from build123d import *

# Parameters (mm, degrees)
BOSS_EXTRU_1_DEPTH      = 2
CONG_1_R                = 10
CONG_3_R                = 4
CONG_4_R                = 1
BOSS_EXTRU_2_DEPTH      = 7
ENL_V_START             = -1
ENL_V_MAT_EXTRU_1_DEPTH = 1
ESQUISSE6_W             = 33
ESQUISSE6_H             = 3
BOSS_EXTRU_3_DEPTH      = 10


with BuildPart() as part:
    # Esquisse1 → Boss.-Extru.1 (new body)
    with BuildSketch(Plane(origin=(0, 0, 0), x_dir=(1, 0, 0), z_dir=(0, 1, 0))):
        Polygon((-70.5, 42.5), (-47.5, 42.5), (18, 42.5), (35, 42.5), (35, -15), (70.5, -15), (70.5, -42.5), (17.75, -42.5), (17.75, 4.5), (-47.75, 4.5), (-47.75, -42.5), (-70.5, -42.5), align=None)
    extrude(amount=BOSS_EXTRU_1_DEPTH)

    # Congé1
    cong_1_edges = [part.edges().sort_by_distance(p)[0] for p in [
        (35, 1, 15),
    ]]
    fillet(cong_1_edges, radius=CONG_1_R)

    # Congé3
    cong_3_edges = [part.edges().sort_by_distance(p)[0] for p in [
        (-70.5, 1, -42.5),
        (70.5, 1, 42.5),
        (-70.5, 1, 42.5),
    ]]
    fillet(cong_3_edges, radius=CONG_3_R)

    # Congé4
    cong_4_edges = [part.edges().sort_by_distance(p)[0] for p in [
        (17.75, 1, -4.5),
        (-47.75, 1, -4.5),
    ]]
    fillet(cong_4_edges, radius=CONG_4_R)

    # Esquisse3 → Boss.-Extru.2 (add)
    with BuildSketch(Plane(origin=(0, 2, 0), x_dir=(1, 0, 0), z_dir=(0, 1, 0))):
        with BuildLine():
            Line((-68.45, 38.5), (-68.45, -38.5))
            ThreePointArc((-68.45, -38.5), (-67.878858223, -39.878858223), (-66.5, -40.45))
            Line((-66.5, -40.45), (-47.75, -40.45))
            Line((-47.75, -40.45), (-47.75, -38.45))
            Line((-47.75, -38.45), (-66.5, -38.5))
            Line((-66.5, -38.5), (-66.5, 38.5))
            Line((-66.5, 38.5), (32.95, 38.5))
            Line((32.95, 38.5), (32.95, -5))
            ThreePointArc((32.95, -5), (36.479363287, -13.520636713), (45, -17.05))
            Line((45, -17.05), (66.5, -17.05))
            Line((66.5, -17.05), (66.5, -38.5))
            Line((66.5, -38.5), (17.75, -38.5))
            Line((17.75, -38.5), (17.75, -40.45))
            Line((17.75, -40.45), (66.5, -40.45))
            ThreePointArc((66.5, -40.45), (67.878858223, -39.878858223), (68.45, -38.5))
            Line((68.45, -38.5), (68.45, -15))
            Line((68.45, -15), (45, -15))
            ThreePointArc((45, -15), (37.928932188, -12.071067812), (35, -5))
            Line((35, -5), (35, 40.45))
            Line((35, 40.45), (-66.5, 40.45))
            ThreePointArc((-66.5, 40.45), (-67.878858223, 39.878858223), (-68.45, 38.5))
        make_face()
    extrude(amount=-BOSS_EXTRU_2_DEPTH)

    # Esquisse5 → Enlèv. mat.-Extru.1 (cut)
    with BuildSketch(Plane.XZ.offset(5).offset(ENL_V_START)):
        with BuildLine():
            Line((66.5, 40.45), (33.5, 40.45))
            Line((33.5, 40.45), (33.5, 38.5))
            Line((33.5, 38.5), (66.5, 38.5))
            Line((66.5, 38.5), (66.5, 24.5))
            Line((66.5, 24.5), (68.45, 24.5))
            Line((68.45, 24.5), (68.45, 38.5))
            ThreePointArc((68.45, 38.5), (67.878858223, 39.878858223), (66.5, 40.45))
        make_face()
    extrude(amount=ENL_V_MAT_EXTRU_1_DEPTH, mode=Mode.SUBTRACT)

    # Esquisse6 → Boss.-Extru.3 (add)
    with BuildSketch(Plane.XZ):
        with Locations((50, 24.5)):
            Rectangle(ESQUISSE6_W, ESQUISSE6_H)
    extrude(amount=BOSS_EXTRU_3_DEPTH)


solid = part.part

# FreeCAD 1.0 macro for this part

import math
import FreeCAD as App
import Part
import Sketcher

V = App.Vector


def edges_at(feature, points):
    """Names of the edges that pass closest to the given points."""
    edges = feature.Shape.Edges
    near = lambda p: min(range(len(edges)), key=lambda i: edges[i].distToShape(Part.Vertex(*p))[0])
    return sorted({f"Edge{near(p) + 1}" for p in points})

doc = App.newDocument("Part")
body = doc.addObject("PartDesign::Body", "Body")

# Sketch on XZ plane
sketch1 = doc.addObject("Sketcher::SketchObject", "Sketch")
body.addObject(sketch1)
sketch1.AttachmentSupport = (doc.XZ_Plane, [""])
sketch1.MapMode = "FlatFace"
sketch1.addGeometry([
    Part.LineSegment(V(35, -42.5, 0), V(-70.5, -42.5, 0)),  # 0
    Part.LineSegment(V(-70.5, -42.5, 0), V(-70.5, 42.5, 0)),  # 1
    Part.LineSegment(V(-70.5, 42.5, 0), V(-47.75, 42.5, 0)),  # 2
    Part.LineSegment(V(-47.75, 42.5, 0), V(-47.75, -4.5, 0)),  # 3
    Part.LineSegment(V(-47.75, -4.5, 0), V(17.75, -4.5, 0)),  # 4
    Part.LineSegment(V(17.75, -4.5, 0), V(17.75, 42.5, 0)),  # 5
    Part.LineSegment(V(17.75, 42.5, 0), V(70.5, 42.5, 0)),  # 6
    Part.LineSegment(V(70.5, 42.5, 0), V(70.5, 15, 0)),  # 7
    Part.LineSegment(V(70.5, 15, 0), V(35, 15, 0)),  # 8
    Part.LineSegment(V(35, 15, 0), V(35, -42.5, 0)),  # 9
], False)
sketch1.addConstraint([
    Sketcher.Constraint("Coincident", 0, 2, 1, 1),
    Sketcher.Constraint("Coincident", 1, 2, 2, 1),
    Sketcher.Constraint("Coincident", 2, 2, 3, 1),
    Sketcher.Constraint("Coincident", 3, 2, 4, 1),
    Sketcher.Constraint("Coincident", 4, 2, 5, 1),
    Sketcher.Constraint("Coincident", 5, 2, 6, 1),
    Sketcher.Constraint("Coincident", 6, 2, 7, 1),
    Sketcher.Constraint("Coincident", 7, 2, 8, 1),
    Sketcher.Constraint("Coincident", 8, 2, 9, 1),
    Sketcher.Constraint("Coincident", 9, 2, 0, 1),
    Sketcher.Constraint("Horizontal", 0),
    Sketcher.Constraint("Vertical", 1),
    Sketcher.Constraint("Horizontal", 2),
    Sketcher.Constraint("Vertical", 3),
    Sketcher.Constraint("Horizontal", 4),
    Sketcher.Constraint("Vertical", 5),
    Sketcher.Constraint("Horizontal", 6),
    Sketcher.Constraint("Vertical", 7),
    Sketcher.Constraint("Horizontal", 8),
    Sketcher.Constraint("Vertical", 9),
    Sketcher.Constraint("Symmetric", 0, 2, 6, 2, -1, 1),
    Sketcher.Constraint("Horizontal", 2, 2, 5, 2),
    Sketcher.Constraint("DistanceY", 1, 1, 1, 2, 85.0),
    Sketcher.Constraint("DistanceY", 3, 2, 3, 1, 47.0),
    Sketcher.Constraint("DistanceX", 0, 2, 0, 1, 105.5),
    Sketcher.Constraint("DistanceX", 4, 1, 4, 2, 65.5),
    Sketcher.Constraint("DistanceX", 8, 2, 8, 1, 35.5),
    Sketcher.Constraint("DistanceY", 7, 2, 7, 1, 27.5),
    Sketcher.Constraint("DistanceX", 2, 1, 2, 2, 22.75),
])
pad1 = doc.addObject("PartDesign::Pad", "Pad")
body.addObject(pad1)
pad1.Profile = sketch1
pad1.Length = 2
pad1.Reversed = True
doc.recompute()

fillet = doc.addObject("PartDesign::Fillet", "Fillet")
body.addObject(fillet)
fillet.Base = (pad1, edges_at(pad1, [(35, 1, 15)]))
fillet.Radius = 10
doc.recompute()

fillet2 = doc.addObject("PartDesign::Fillet", "Fillet001")
body.addObject(fillet2)
fillet2.Base = (fillet, edges_at(fillet, [(-70.5, 1, -42.5), (70.5, 1, 42.5), (-70.5, 1, 42.5)]))
fillet2.Radius = 4
doc.recompute()

fillet3 = doc.addObject("PartDesign::Fillet", "Fillet002")
body.addObject(fillet3)
fillet3.Base = (fillet2, edges_at(fillet2, [(17.75, 1, -4.5), (-47.75, 1, -4.5)]))
fillet3.Radius = 1

# Sketch on XZ plane
sketch2 = doc.addObject("Sketcher::SketchObject", "Sketch001")
body.addObject(sketch2)
sketch2.AttachmentSupport = (doc.XZ_Plane, [""])
sketch2.MapMode = "FlatFace"
sketch2.AttachmentOffset = App.Placement(V(0, 0, -2), App.Rotation())
sketch2.addGeometry([
    Part.LineSegment(V(-68.45, -38.5, 0), V(-68.45, 38.5, 0)),  # 0
    Part.ArcOfCircle(Part.Circle(V(-66.5, 38.5, 0), V(0, 0, 1), 1.95), math.radians(90), math.radians(180)),  # 1
    Part.LineSegment(V(-66.5, 40.45, 0), V(-47.75, 40.45, 0)),  # 2
    Part.LineSegment(V(-47.75, 40.45, 0), V(-47.75, 38.45, 0)),  # 3
    Part.LineSegment(V(-47.75, 38.45, 0), V(-66.5, 38.5, 0)),  # 4
    Part.LineSegment(V(-66.5, 38.5, 0), V(-66.5, -38.5, 0)),  # 5
    Part.LineSegment(V(-66.5, -38.5, 0), V(32.95, -38.5, 0)),  # 6
    Part.LineSegment(V(32.95, -38.5, 0), V(32.95, 5, 0)),  # 7
    Part.ArcOfCircle(Part.Circle(V(45, 5, 0), V(0, 0, 1), 12.05), math.radians(90), math.radians(180)),  # 8
    Part.LineSegment(V(45, 17.05, 0), V(66.5, 17.05, 0)),  # 9
    Part.LineSegment(V(66.5, 17.05, 0), V(66.5, 38.5, 0)),  # 10
    Part.LineSegment(V(66.5, 38.5, 0), V(17.75, 38.5, 0)),  # 11
    Part.LineSegment(V(17.75, 38.5, 0), V(17.75, 40.45, 0)),  # 12
    Part.LineSegment(V(17.75, 40.45, 0), V(66.5, 40.45, 0)),  # 13
    Part.ArcOfCircle(Part.Circle(V(66.5, 38.5, 0), V(0, 0, 1), 1.95), math.radians(0), math.radians(90)),  # 14
    Part.LineSegment(V(68.45, 38.5, 0), V(68.45, 15, 0)),  # 15
    Part.LineSegment(V(68.45, 15, 0), V(45, 15, 0)),  # 16
    Part.ArcOfCircle(Part.Circle(V(45, 5, 0), V(0, 0, 1), 10), math.radians(90), math.radians(180)),  # 17
    Part.LineSegment(V(35, 5, 0), V(35, -40.45, 0)),  # 18
    Part.LineSegment(V(35, -40.45, 0), V(-66.5, -40.45, 0)),  # 19
    Part.ArcOfCircle(Part.Circle(V(-66.5, -38.5, 0), V(0, 0, 1), 1.95), math.radians(-180), math.radians(-90)),  # 20
], False)
sketch2.addConstraint([
    Sketcher.Constraint("Tangent", 0, 2, 1, 2),
    Sketcher.Constraint("Tangent", 1, 1, 2, 1),
    Sketcher.Constraint("Coincident", 2, 2, 3, 1),
    Sketcher.Constraint("Coincident", 3, 2, 4, 1),
    Sketcher.Constraint("Coincident", 4, 2, 5, 1),
    Sketcher.Constraint("Coincident", 5, 2, 6, 1),
    Sketcher.Constraint("Coincident", 6, 2, 7, 1),
    Sketcher.Constraint("Tangent", 7, 2, 8, 2),
    Sketcher.Constraint("Tangent", 8, 1, 9, 1),
    Sketcher.Constraint("Coincident", 9, 2, 10, 1),
    Sketcher.Constraint("Coincident", 10, 2, 11, 1),
    Sketcher.Constraint("Coincident", 11, 2, 12, 1),
    Sketcher.Constraint("Coincident", 12, 2, 13, 1),
    Sketcher.Constraint("Tangent", 13, 2, 14, 2),
    Sketcher.Constraint("Tangent", 14, 1, 15, 1),
    Sketcher.Constraint("Coincident", 15, 2, 16, 1),
    Sketcher.Constraint("Tangent", 16, 2, 17, 1),
    Sketcher.Constraint("Tangent", 17, 2, 18, 1),
    Sketcher.Constraint("Coincident", 18, 2, 19, 1),
    Sketcher.Constraint("Tangent", 19, 2, 20, 2),
    Sketcher.Constraint("Tangent", 20, 1, 0, 1),
    Sketcher.Constraint("Vertical", 0),
    Sketcher.Constraint("Horizontal", 2),
    Sketcher.Constraint("Vertical", 3),
    Sketcher.Constraint("Vertical", 5),
    Sketcher.Constraint("Horizontal", 6),
    Sketcher.Constraint("Vertical", 7),
    Sketcher.Constraint("Horizontal", 9),
    Sketcher.Constraint("Vertical", 10),
    Sketcher.Constraint("Horizontal", 11),
    Sketcher.Constraint("Vertical", 12),
    Sketcher.Constraint("Horizontal", 13),
    Sketcher.Constraint("Vertical", 15),
    Sketcher.Constraint("Horizontal", 16),
    Sketcher.Constraint("Vertical", 18),
    Sketcher.Constraint("Horizontal", 19),
    Sketcher.Constraint("Coincident", 17, 3, 8, 3),
    Sketcher.Constraint("Coincident", 4, 2, 1, 3),
    Sketcher.Constraint("Coincident", 5, 2, 20, 3),
    Sketcher.Constraint("Coincident", 10, 2, 14, 3),
    Sketcher.Constraint("Equal", 1, 14),
    Sketcher.Constraint("Symmetric", 14, 3, 20, 3, -1, 1),
    Sketcher.Constraint("Horizontal", 1, 3, 14, 3),
    Sketcher.Constraint("Radius", 17, 10.0),
    Sketcher.Constraint("DistanceY", 0, 1, 0, 2, 77.0),
    Sketcher.Constraint("DistanceY", 3, 2, 3, 1, 2.0),
    Sketcher.Constraint("Radius", 1, 1.95),
    Sketcher.Constraint("Radius", 8, 12.05),
    Sketcher.Constraint("DistanceX", 9, 1, 9, 2, 21.5),
    Sketcher.Constraint("DistanceX", 19, 2, 19, 1, 101.5),
    Sketcher.Constraint("DistanceY", 7, 1, 7, 2, 43.5),
    Sketcher.Constraint("DistanceX", 2, 1, 2, 2, 18.75),
    Sketcher.Constraint("DistanceX", 11, 2, 11, 1, 48.75),
])
pad2 = doc.addObject("PartDesign::Pad", "Pad001")
body.addObject(pad2)
pad2.Profile = sketch2
pad2.Length = 7

# Sketch on XZ plane
sketch3 = doc.addObject("Sketcher::SketchObject", "Sketch002")
body.addObject(sketch3)
sketch3.AttachmentSupport = (doc.XZ_Plane, [""])
sketch3.MapMode = "FlatFace"
sketch3.AttachmentOffset = App.Placement(V(0, 0, 4), App.Rotation())
sketch3.addGeometry([
    Part.LineSegment(V(66.5, 40.45, 0), V(33.5, 40.45, 0)),  # 0
    Part.LineSegment(V(33.5, 40.45, 0), V(33.5, 38.5, 0)),  # 1
    Part.LineSegment(V(33.5, 38.5, 0), V(66.5, 38.5, 0)),  # 2
    Part.LineSegment(V(66.5, 38.5, 0), V(66.5, 24.5, 0)),  # 3
    Part.LineSegment(V(66.5, 24.5, 0), V(68.45, 24.5, 0)),  # 4
    Part.LineSegment(V(68.45, 24.5, 0), V(68.45, 38.5, 0)),  # 5
    Part.ArcOfCircle(Part.Circle(V(66.5, 38.5, 0), V(0, 0, 1), 1.95), math.radians(0), math.radians(90)),  # 6
], False)
sketch3.addConstraint([
    Sketcher.Constraint("Coincident", 0, 2, 1, 1),
    Sketcher.Constraint("Coincident", 1, 2, 2, 1),
    Sketcher.Constraint("Coincident", 2, 2, 3, 1),
    Sketcher.Constraint("Coincident", 3, 2, 4, 1),
    Sketcher.Constraint("Coincident", 4, 2, 5, 1),
    Sketcher.Constraint("Tangent", 5, 2, 6, 1),
    Sketcher.Constraint("Tangent", 6, 2, 0, 1),
    Sketcher.Constraint("Horizontal", 0),
    Sketcher.Constraint("Vertical", 1),
    Sketcher.Constraint("Horizontal", 2),
    Sketcher.Constraint("Vertical", 3),
    Sketcher.Constraint("Horizontal", 4),
    Sketcher.Constraint("Vertical", 5),
    Sketcher.Constraint("Coincident", 2, 2, 6, 3),
    Sketcher.Constraint("DistanceX", 0, 2, 0, 1, 33.0),
    Sketcher.Constraint("DistanceY", 3, 2, 3, 1, 14.0),
    Sketcher.Constraint("Radius", 6, 1.95),
    Sketcher.Constraint("DistanceX", -1, 1, 6, 3, 66.5),
    Sketcher.Constraint("DistanceY", -1, 1, 6, 3, 38.5),
])
pocket1 = doc.addObject("PartDesign::Pocket", "Pocket")
body.addObject(pocket1)
pocket1.Profile = sketch3
pocket1.Length = 1
pocket1.Reversed = True

# Sketch on XZ plane
sketch4 = doc.addObject("Sketcher::SketchObject", "Sketch003")
body.addObject(sketch4)
sketch4.AttachmentSupport = (doc.XZ_Plane, [""])
sketch4.MapMode = "FlatFace"
sketch4.addGeometry([
    Part.LineSegment(V(33.5, 26, 0), V(33.5, 23, 0)),
    Part.LineSegment(V(33.5, 23, 0), V(66.5, 23, 0)),
    Part.LineSegment(V(66.5, 23, 0), V(66.5, 26, 0)),
    Part.LineSegment(V(66.5, 26, 0), V(33.5, 26, 0)),
], False)
sketch4.addConstraint([
    Sketcher.Constraint("Coincident", 0, 2, 1, 1),
    Sketcher.Constraint("Coincident", 1, 2, 2, 1),
    Sketcher.Constraint("Coincident", 2, 2, 3, 1),
    Sketcher.Constraint("Coincident", 3, 2, 0, 1),
    Sketcher.Constraint("Vertical", 0),
    Sketcher.Constraint("Horizontal", 1),
    Sketcher.Constraint("Vertical", 2),
    Sketcher.Constraint("Horizontal", 3),
    Sketcher.Constraint("DistanceX", 1, 1, 1, 2, 33.0),
    Sketcher.Constraint("DistanceY", 0, 2, 0, 1, 3.0),
    Sketcher.Constraint("DistanceY", -1, 1, 0, 2, 23.0),
    Sketcher.Constraint("DistanceX", -1, 1, 0, 2, 33.5),
])
pad3 = doc.addObject("PartDesign::Pad", "Pad002")
body.addObject(pad3)
pad3.Profile = sketch4
pad3.Length = 10

doc.recompute()
